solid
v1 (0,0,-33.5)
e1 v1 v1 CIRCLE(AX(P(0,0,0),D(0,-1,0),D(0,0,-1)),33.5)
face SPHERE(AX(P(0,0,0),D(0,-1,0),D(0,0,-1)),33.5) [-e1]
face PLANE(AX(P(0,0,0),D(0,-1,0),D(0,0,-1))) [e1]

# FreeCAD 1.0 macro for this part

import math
import FreeCAD as App
import Part
import Sketcher

V = App.Vector

doc = App.newDocument("Part")
params = doc.addObject("Spreadsheet::Sheet", "Params")
for row, (alias, value) in enumerate([
    ("sketch1_radius", "33.5 mm"),
    ("revolution_angle", "180 deg"),
], start=1):
    params.set(f"A{row}", alias)
    params.set(f"B{row}", "=" + value)
    params.setAlias(f"B{row}", alias)

body = doc.addObject("PartDesign::Body", "Body")

# Sketch on XZ plane
sketch1 = body.newObject("Sketcher::SketchObject", "Sketch")
sketch1.AttachmentSupport = (doc.getObject("XZ_Plane"), [""])
sketch1.MapMode = "FlatFace"
sketch1.addGeometry(Part.LineSegment(V(-34, 0, 0), V(34, 0, 0)), False)
sketch1.addGeometry(Part.ArcOfCircle(Part.Circle(V(0, 0, 0), V(0, 0, 1), 34), math.radians(180), math.radians(360)), False)
sketch1.addConstraint(Sketcher.Constraint("Coincident", 0, 1, 1, 1))
sketch1.addConstraint(Sketcher.Constraint("Coincident", 1, 2, 0, 2))
sketch1.addConstraint(Sketcher.Constraint("Horizontal", 0))
sketch1.addConstraint(Sketcher.Constraint("Coincident", 1, 3, -1, 1))
sketch1.addConstraint(Sketcher.Constraint("PointOnObject", 0, 1, -1))
sketch1.addConstraint(Sketcher.Constraint("Radius", 1, 33.5))
sketch1.setExpression("Constraints[5]", "Params.sketch1_radius")
revolution = body.newObject("PartDesign::Revolution", "Revolution")
revolution.Profile = sketch1
revolution.ReferenceAxis = (sketch1, ["H_Axis"])
revolution.setExpression("Angle", "Params.revolution_angle")

doc.recompute()
